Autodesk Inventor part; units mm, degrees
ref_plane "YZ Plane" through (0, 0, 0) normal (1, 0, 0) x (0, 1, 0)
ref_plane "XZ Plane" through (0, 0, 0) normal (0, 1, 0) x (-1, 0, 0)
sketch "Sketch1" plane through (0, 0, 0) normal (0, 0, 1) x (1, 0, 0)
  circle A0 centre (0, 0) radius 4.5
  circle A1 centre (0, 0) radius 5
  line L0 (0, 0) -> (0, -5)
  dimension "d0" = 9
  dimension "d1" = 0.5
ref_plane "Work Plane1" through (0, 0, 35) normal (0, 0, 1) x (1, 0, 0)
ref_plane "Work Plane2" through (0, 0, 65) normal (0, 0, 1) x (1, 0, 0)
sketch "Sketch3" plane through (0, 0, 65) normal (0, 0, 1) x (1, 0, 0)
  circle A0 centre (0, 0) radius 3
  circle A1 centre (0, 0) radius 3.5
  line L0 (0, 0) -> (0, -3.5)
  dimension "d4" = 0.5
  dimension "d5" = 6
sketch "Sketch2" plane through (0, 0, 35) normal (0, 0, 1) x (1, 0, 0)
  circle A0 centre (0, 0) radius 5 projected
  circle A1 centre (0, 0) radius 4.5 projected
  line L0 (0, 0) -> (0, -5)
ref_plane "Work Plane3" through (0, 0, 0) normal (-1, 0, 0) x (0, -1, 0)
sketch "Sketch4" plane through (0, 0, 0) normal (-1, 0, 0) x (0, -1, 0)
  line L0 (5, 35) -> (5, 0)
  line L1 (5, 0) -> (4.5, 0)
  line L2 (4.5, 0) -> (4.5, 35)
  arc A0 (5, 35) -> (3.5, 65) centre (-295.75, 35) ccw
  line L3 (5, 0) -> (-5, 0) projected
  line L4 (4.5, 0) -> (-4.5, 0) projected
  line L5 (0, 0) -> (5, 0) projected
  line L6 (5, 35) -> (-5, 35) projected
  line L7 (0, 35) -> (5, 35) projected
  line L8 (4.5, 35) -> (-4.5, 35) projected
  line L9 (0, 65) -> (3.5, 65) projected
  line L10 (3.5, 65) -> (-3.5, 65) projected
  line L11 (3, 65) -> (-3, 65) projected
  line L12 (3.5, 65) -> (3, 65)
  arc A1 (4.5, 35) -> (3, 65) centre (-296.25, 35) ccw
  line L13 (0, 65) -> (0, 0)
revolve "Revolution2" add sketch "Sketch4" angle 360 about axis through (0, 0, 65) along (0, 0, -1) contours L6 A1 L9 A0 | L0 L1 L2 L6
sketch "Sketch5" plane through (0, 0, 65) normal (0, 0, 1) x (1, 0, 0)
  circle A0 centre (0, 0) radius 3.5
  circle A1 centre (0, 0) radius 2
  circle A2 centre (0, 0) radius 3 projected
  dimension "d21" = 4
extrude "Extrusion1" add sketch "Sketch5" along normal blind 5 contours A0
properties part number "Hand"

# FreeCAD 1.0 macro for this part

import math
import FreeCAD as App
import Part
import Sketcher

doc = App.newDocument("Part")
body = doc.addObject("PartDesign::Body", "Body")

# Sketch on YZ plane
sketch1 = doc.addObject("Sketcher::SketchObject", "Sketch")
body.addObject(sketch1)
sketch1.AttachmentSupport = (doc.YZ_Plane, [""])
sketch1.MapMode = "FlatFace"
sketch1.addGeometry(Part.ArcOfCircle(Part.Circle(App.Vector(296.25, 35, 0), App.Vector(0, 0, 1), 300.75), math.radians(174.27519), math.radians(180)), False)
sketch1.addGeometry(Part.LineSegment(App.Vector(-4.5, 35, 0), App.Vector(-4.5, 0, 0)), False)
sketch1.addGeometry(Part.LineSegment(App.Vector(-4.5, 0, 0), App.Vector(-5, 0, 0)), False)
sketch1.addGeometry(Part.LineSegment(App.Vector(-5, 0, 0), App.Vector(-5, 35, 0)), False)
sketch1.addGeometry(Part.ArcOfCircle(Part.Circle(App.Vector(295.75, 35, 0), App.Vector(0, 0, 1), 300.75), math.radians(174.27519), math.radians(180)), False)
sketch1.addGeometry(Part.LineSegment(App.Vector(-3.5, 65, 0), App.Vector(-3, 65, 0)), False)
sketch1.addConstraint(Sketcher.Constraint("Tangent", 0, 2, 1, 1))
sketch1.addConstraint(Sketcher.Constraint("Coincident", 1, 2, 2, 1))
sketch1.addConstraint(Sketcher.Constraint("Coincident", 2, 2, 3, 1))
sketch1.addConstraint(Sketcher.Constraint("Tangent", 3, 2, 4, 2))
sketch1.addConstraint(Sketcher.Constraint("Coincident", 4, 1, 5, 1))
sketch1.addConstraint(Sketcher.Constraint("Coincident", 5, 2, 0, 1))
sketch1.addConstraint(Sketcher.Constraint("Vertical", 1))
sketch1.addConstraint(Sketcher.Constraint("Horizontal", 2))
sketch1.addConstraint(Sketcher.Constraint("Vertical", 3))
sketch1.addConstraint(Sketcher.Constraint("Horizontal", 5))
sketch1.addConstraint(Sketcher.Constraint("Equal", 0, 4))
sketch1.addConstraint(Sketcher.Constraint("PointOnObject", 1, 2, -1))
sketch1.addConstraint(Sketcher.Constraint("Horizontal", 0, 3, 4, 3))
sketch1.addConstraint(Sketcher.Constraint("DistanceY", 1, 2, 1, 1, 35.0))
sketch1.addConstraint(Sketcher.Constraint("Radius", 0, 300.75))
sketch1.addConstraint(Sketcher.Constraint("DistanceX", 2, 2, 2, 1, 0.5))
sketch1.addConstraint(Sketcher.Constraint("DistanceX", 2, 2, -1, 1, 5.0))
sketch1.addConstraint(Sketcher.Constraint("DistanceY", -1, 1, 4, 1, 65.0))
revolution = doc.addObject("PartDesign::Revolution", "Revolution")
body.addObject(revolution)
revolution.Profile = sketch1
revolution.ReferenceAxis = (sketch1, ["V_Axis"])
revolution.Angle = 360

# Sketch on XY plane
sketch2 = doc.addObject("Sketcher::SketchObject", "Sketch001")
body.addObject(sketch2)
sketch2.AttachmentSupport = (doc.XY_Plane, [""])
sketch2.MapMode = "FlatFace"
sketch2.AttachmentOffset = App.Placement(App.Vector(0, 0, 65), App.Rotation())
sketch2.addGeometry(Part.Circle(App.Vector(0, 0, 0), App.Vector(0, 0, 1), 3.5), False)
sketch2.addGeometry(Part.Circle(App.Vector(0, 0, 0), App.Vector(0, 0, 1), 3), False)
sketch2.addConstraint(Sketcher.Constraint("Coincident", 0, 3, -1, 1))
sketch2.addConstraint(Sketcher.Constraint("Coincident", 1, 3, -1, 1))
sketch2.addConstraint(Sketcher.Constraint("Diameter", 0, 7.0))
sketch2.addConstraint(Sketcher.Constraint("Diameter", 1, 6.0))
pad1 = doc.addObject("PartDesign::Pad", "Pad")
body.addObject(pad1)
pad1.Profile = sketch2
pad1.Length = 5

doc.recompute()
